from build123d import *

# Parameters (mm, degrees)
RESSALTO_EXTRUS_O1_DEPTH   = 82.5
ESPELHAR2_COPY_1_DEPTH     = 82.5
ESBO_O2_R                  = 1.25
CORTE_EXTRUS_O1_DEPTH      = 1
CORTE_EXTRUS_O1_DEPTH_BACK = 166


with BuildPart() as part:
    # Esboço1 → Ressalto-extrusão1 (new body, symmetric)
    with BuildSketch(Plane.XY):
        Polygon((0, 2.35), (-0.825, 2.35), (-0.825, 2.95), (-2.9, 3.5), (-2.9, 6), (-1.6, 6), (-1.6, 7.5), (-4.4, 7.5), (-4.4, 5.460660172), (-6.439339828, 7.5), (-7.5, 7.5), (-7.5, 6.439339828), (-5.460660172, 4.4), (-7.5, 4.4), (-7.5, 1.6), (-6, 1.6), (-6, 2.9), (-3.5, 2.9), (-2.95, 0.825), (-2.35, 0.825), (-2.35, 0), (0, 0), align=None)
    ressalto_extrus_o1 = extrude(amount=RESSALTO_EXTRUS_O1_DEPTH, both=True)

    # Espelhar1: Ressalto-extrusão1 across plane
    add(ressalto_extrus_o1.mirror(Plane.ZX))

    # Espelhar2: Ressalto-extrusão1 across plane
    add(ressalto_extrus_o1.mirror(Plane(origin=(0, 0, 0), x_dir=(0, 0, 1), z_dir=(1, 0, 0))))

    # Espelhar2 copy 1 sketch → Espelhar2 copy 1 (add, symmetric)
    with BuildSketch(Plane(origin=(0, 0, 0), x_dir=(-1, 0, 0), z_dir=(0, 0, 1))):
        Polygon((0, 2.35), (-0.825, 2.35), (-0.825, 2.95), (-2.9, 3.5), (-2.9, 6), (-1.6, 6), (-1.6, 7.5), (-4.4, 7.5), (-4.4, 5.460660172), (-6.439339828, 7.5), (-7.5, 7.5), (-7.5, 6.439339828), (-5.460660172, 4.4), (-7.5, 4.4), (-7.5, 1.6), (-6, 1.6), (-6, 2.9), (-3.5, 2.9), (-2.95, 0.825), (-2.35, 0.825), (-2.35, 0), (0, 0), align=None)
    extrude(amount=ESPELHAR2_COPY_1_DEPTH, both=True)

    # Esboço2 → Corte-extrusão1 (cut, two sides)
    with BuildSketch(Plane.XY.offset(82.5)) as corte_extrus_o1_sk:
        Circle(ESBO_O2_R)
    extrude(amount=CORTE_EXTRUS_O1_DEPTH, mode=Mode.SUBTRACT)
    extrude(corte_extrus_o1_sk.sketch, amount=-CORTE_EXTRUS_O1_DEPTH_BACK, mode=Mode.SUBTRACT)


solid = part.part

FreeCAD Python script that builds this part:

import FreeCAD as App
import Part
import Sketcher

doc = App.newDocument("Part")
body = doc.addObject("PartDesign::Body", "Body")

sketch1 = doc.addObject("Sketcher::SketchObject", "Sketch")
body.addObject(sketch1)
sketch1.AttachmentSupport = (doc.XY_Plane, [""])
sketch1.MapMode = "FlatFace"
sketch1.addGeometry(Part.LineSegment(App.Vector(0, 2.4, 0), App.Vector(-0.8, 2.4, 0)), False)
sketch1.addGeometry(Part.LineSegment(App.Vector(-0.8, 2.4, 0), App.Vector(-0.8, 3, 0)), False)
sketch1.addGeometry(Part.LineSegment(App.Vector(-0.8, 3, 0), App.Vector(-2.9, 3.5, 0)), False)
sketch1.addGeometry(Part.LineSegment(App.Vector(-2.9, 3.5, 0), App.Vector(-2.9, 6, 0)), False)
sketch1.addGeometry(Part.LineSegment(App.Vector(-2.9, 6, 0), App.Vector(-1.6, 6, 0)), False)
sketch1.addGeometry(Part.LineSegment(App.Vector(-1.6, 6, 0), App.Vector(-1.6, 7.5, 0)), False)
sketch1.addGeometry(Part.LineSegment(App.Vector(-1.6, 7.5, 0), App.Vector(-4.4, 7.5, 0)), False)
sketch1.addGeometry(Part.LineSegment(App.Vector(-4.4, 7.5, 0), App.Vector(-4.4, 5.5, 0)), False)
sketch1.addGeometry(Part.LineSegment(App.Vector(-4.4, 5.5, 0), App.Vector(-6.4, 7.5, 0)), False)
sketch1.addGeometry(Part.LineSegment(App.Vector(-6.4, 7.5, 0), App.Vector(-7.5, 7.5, 0)), False)
sketch1.addGeometry(Part.LineSegment(App.Vector(-7.5, 7.5, 0), App.Vector(-7.5, 6.4, 0)), False)
sketch1.addGeometry(Part.LineSegment(App.Vector(-7.5, 6.4, 0), App.Vector(-5.5, 4.4, 0)), False)
sketch1.addGeometry(Part.LineSegment(App.Vector(-5.5, 4.4, 0), App.Vector(-7.5, 4.4, 0)), False)
sketch1.addGeometry(Part.LineSegment(App.Vector(-7.5, 4.4, 0), App.Vector(-7.5, 1.6, 0)), False)
sketch1.addGeometry(Part.LineSegment(App.Vector(-7.5, 1.6, 0), App.Vector(-6, 1.6, 0)), False)
sketch1.addGeometry(Part.LineSegment(App.Vector(-6, 1.6, 0), App.Vector(-6, 2.9, 0)), False)
sketch1.addGeometry(Part.LineSegment(App.Vector(-6, 2.9, 0), App.Vector(-3.5, 2.9, 0)), False)
sketch1.addGeometry(Part.LineSegment(App.Vector(-3.5, 2.9, 0), App.Vector(-3, 0.8, 0)), False)
sketch1.addGeometry(Part.LineSegment(App.Vector(-3, 0.8, 0), App.Vector(-2.4, 0.8, 0)), False)
sketch1.addGeometry(Part.LineSegment(App.Vector(-2.4, 0.8, 0), App.Vector(-2.4, 0, 0)), False)
sketch1.addGeometry(Part.LineSegment(App.Vector(-2.4, 0, 0), App.Vector(0, 0, 0)), False)
sketch1.addGeometry(Part.LineSegment(App.Vector(0, 0, 0), App.Vector(0, 2.4, 0)), False)
sketch1.addConstraint(Sketcher.Constraint("Coincident", 0, 2, 1, 1))
sketch1.addConstraint(Sketcher.Constraint("Coincident", 1, 2, 2, 1))
sketch1.addConstraint(Sketcher.Constraint("Coincident", 2, 2, 3, 1))
sketch1.addConstraint(Sketcher.Constraint("Coincident", 3, 2, 4, 1))
sketch1.addConstraint(Sketcher.Constraint("Coincident", 4, 2, 5, 1))
sketch1.addConstraint(Sketcher.Constraint("Coincident", 5, 2, 6, 1))
sketch1.addConstraint(Sketcher.Constraint("Coincident", 6, 2, 7, 1))
sketch1.addConstraint(Sketcher.Constraint("Coincident", 7, 2, 8, 1))
sketch1.addConstraint(Sketcher.Constraint("Coincident", 8, 2, 9, 1))
sketch1.addConstraint(Sketcher.Constraint("Coincident", 9, 2, 10, 1))
sketch1.addConstraint(Sketcher.Constraint("Coincident", 10, 2, 11, 1))
sketch1.addConstraint(Sketcher.Constraint("Coincident", 11, 2, 12, 1))
sketch1.addConstraint(Sketcher.Constraint("Coincident", 12, 2, 13, 1))
sketch1.addConstraint(Sketcher.Constraint("Coincident", 13, 2, 14, 1))
sketch1.addConstraint(Sketcher.Constraint("Coincident", 14, 2, 15, 1))
sketch1.addConstraint(Sketcher.Constraint("Coincident", 15, 2, 16, 1))
sketch1.addConstraint(Sketcher.Constraint("Coincident", 16, 2, 17, 1))
sketch1.addConstraint(Sketcher.Constraint("Coincident", 17, 2, 18, 1))
sketch1.addConstraint(Sketcher.Constraint("Coincident", 18, 2, 19, 1))
sketch1.addConstraint(Sketcher.Constraint("Coincident", 19, 2, 20, 1))
sketch1.addConstraint(Sketcher.Constraint("Coincident", 20, 2, 21, 1))
sketch1.addConstraint(Sketcher.Constraint("Coincident", 21, 2, 0, 1))
sketch1.addConstraint(Sketcher.Constraint("Horizontal", 0))
sketch1.addConstraint(Sketcher.Constraint("Vertical", 1))
sketch1.addConstraint(Sketcher.Constraint("Vertical", 3))
sketch1.addConstraint(Sketcher.Constraint("Horizontal", 4))
sketch1.addConstraint(Sketcher.Constraint("Vertical", 5))
sketch1.addConstraint(Sketcher.Constraint("Horizontal", 6))
sketch1.addConstraint(Sketcher.Constraint("Vertical", 7))
sketch1.addConstraint(Sketcher.Constraint("Horizontal", 9))
sketch1.addConstraint(Sketcher.Constraint("Vertical", 10))
sketch1.addConstraint(Sketcher.Constraint("Horizontal", 12))
sketch1.addConstraint(Sketcher.Constraint("Vertical", 13))
sketch1.addConstraint(Sketcher.Constraint("Horizontal", 14))
sketch1.addConstraint(Sketcher.Constraint("Vertical", 15))
sketch1.addConstraint(Sketcher.Constraint("Horizontal", 16))
sketch1.addConstraint(Sketcher.Constraint("Horizontal", 18))
sketch1.addConstraint(Sketcher.Constraint("Vertical", 19))
sketch1.addConstraint(Sketcher.Constraint("Horizontal", 20))
sketch1.addConstraint(Sketcher.Constraint("Vertical", 21))
sketch1.addConstraint(Sketcher.Constraint("Coincident", 20, 2, -1, 1))
sketch1.addConstraint(Sketcher.Constraint("Parallel", 8, 11))
sketch1.addConstraint(Sketcher.Constraint("Horizontal", 6, 2, 8, 2))
sketch1.addConstraint(Sketcher.Constraint("Vertical", 10, 2, 12, 2))
sketch1.addConstraint(Sketcher.Constraint("Equal", 18, 1))
sketch1.addConstraint(Sketcher.Constraint("Equal", 16, 3))
sketch1.addConstraint(Sketcher.Constraint("Equal", 14, 5))
sketch1.addConstraint(Sketcher.Constraint("Equal", 12, 7))
sketch1.addConstraint(Sketcher.Constraint("Equal", 9, 10))
sketch1.addConstraint(Sketcher.Constraint("Equal", 6, 13))
sketch1.addConstraint(Sketcher.Constraint("Equal", 4, 15))
sketch1.addConstraint(Sketcher.Constraint("Equal", 0, 19))
sketch1.addConstraint(Sketcher.Constraint("Equal", 20, 21))
sketch1.addConstraint(Sketcher.Constraint("Equal", 8, 11))
sketch1.addConstraint(Sketcher.Constraint("Equal", 2, 17))
sketch1.addConstraint(Sketcher.Constraint("DistanceX", 4, 1, 4, 2, 1.3))
sketch1.addConstraint(Sketcher.Constraint("DistanceX", 6, 2, 6, 1, 2.8))
sketch1.addConstraint(Sketcher.Constraint("DistanceX", 14, 1, 14, 2, 1.5))
sketch1.addConstraint(Sketcher.Constraint("DistanceX", 16, 1, 16, 2, 2.5))
sketch1.addConstraint(Sketcher.Constraint("DistanceX", 18, 1, 18, 2, 0.6))
sketch1.addConstraint(Sketcher.Constraint("DistanceY", -1, 1, 3, 2, 6.0))
sketch1.addConstraint(Sketcher.Constraint("DistanceX", 20, 1, 20, 2, 2.35))
sketch1.addConstraint(Sketcher.Constraint("DistanceX", 2, 2, -1, 1, 2.9))
sketch1.addConstraint(Sketcher.Constraint("DistanceX", 0, 2, 0, 1, 0.825))
sketch1.addConstraint(Sketcher.Constraint("DistanceX", 9, 2, 9, 1, 1.06066))
pad1 = doc.addObject("PartDesign::Pad", "Pad")
body.addObject(pad1)
pad1.Profile = sketch1
pad1.Length = 165
pad1.Midplane = True
doc.recompute()

mirrored = doc.addObject("PartDesign::Mirrored", "Mirrored")
body.addObject(mirrored)
mirrored.Originals = [pad1]
mirrored.MirrorPlane = (doc.XZ_Plane, [""])
body.Tip = mirrored
doc.recompute()

mirrored2 = doc.addObject("PartDesign::Mirrored", "Mirrored001")
body.addObject(mirrored2)
mirrored2.Originals = [pad1]
mirrored2.MirrorPlane = (doc.YZ_Plane, [""])
body.Tip = mirrored2

sketch2 = doc.addObject("Sketcher::SketchObject", "Sketch001")
body.addObject(sketch2)
sketch2.AttachmentSupport = (doc.XY_Plane, [""])
sketch2.MapMode = "FlatFace"
sketch2.addGeometry(Part.LineSegment(App.Vector(0, -2.4, 0), App.Vector(0.8, -2.4, 0)), False)
sketch2.addGeometry(Part.LineSegment(App.Vector(0.8, -2.4, 0), App.Vector(0.8, -3, 0)), False)
sketch2.addGeometry(Part.LineSegment(App.Vector(0.8, -3, 0), App.Vector(2.9, -3.5, 0)), False)
sketch2.addGeometry(Part.LineSegment(App.Vector(2.9, -3.5, 0), App.Vector(2.9, -6, 0)), False)
sketch2.addGeometry(Part.LineSegment(App.Vector(2.9, -6, 0), App.Vector(1.6, -6, 0)), False)
sketch2.addGeometry(Part.LineSegment(App.Vector(1.6, -6, 0), App.Vector(1.6, -7.5, 0)), False)
sketch2.addGeometry(Part.LineSegment(App.Vector(1.6, -7.5, 0), App.Vector(4.4, -7.5, 0)), False)
sketch2.addGeometry(Part.LineSegment(App.Vector(4.4, -7.5, 0), App.Vector(4.4, -5.5, 0)), False)
sketch2.addGeometry(Part.LineSegment(App.Vector(4.4, -5.5, 0), App.Vector(6.4, -7.5, 0)), False)
sketch2.addGeometry(Part.LineSegment(App.Vector(6.4, -7.5, 0), App.Vector(7.5, -7.5, 0)), False)
sketch2.addGeometry(Part.LineSegment(App.Vector(7.5, -7.5, 0), App.Vector(7.5, -6.4, 0)), False)
sketch2.addGeometry(Part.LineSegment(App.Vector(7.5, -6.4, 0), App.Vector(5.5, -4.4, 0)), False)
sketch2.addGeometry(Part.LineSegment(App.Vector(5.5, -4.4, 0), App.Vector(7.5, -4.4, 0)), False)
sketch2.addGeometry(Part.LineSegment(App.Vector(7.5, -4.4, 0), App.Vector(7.5, -1.6, 0)), False)
sketch2.addGeometry(Part.LineSegment(App.Vector(7.5, -1.6, 0), App.Vector(6, -1.6, 0)), False)
sketch2.addGeometry(Part.LineSegment(App.Vector(6, -1.6, 0), App.Vector(6, -2.9, 0)), False)
sketch2.addGeometry(Part.LineSegment(App.Vector(6, -2.9, 0), App.Vector(3.5, -2.9, 0)), False)
sketch2.addGeometry(Part.LineSegment(App.Vector(3.5, -2.9, 0), App.Vector(3, -0.8, 0)), False)
sketch2.addGeometry(Part.LineSegment(App.Vector(3, -0.8, 0), App.Vector(2.4, -0.8, 0)), False)
sketch2.addGeometry(Part.LineSegment(App.Vector(2.4, -0.8, 0), App.Vector(2.4, 0, 0)), False)
sketch2.addGeometry(Part.LineSegment(App.Vector(2.4, 0, 0), App.Vector(0, 0, 0)), False)
sketch2.addGeometry(Part.LineSegment(App.Vector(0, 0, 0), App.Vector(0, -2.4, 0)), False)
sketch2.addConstraint(Sketcher.Constraint("Coincident", 0, 2, 1, 1))
sketch2.addConstraint(Sketcher.Constraint("Coincident", 1, 2, 2, 1))
sketch2.addConstraint(Sketcher.Constraint("Coincident", 2, 2, 3, 1))
sketch2.addConstraint(Sketcher.Constraint("Coincident", 3, 2, 4, 1))
sketch2.addConstraint(Sketcher.Constraint("Coincident", 4, 2, 5, 1))
sketch2.addConstraint(Sketcher.Constraint("Coincident", 5, 2, 6, 1))
sketch2.addConstraint(Sketcher.Constraint("Coincident", 6, 2, 7, 1))
sketch2.addConstraint(Sketcher.Constraint("Coincident", 7, 2, 8, 1))
sketch2.addConstraint(Sketcher.Constraint("Coincident", 8, 2, 9, 1))
sketch2.addConstraint(Sketcher.Constraint("Coincident", 9, 2, 10, 1))
sketch2.addConstraint(Sketcher.Constraint("Coincident", 10, 2, 11, 1))
sketch2.addConstraint(Sketcher.Constraint("Coincident", 11, 2, 12, 1))
sketch2.addConstraint(Sketcher.Constraint("Coincident", 12, 2, 13, 1))
sketch2.addConstraint(Sketcher.Constraint("Coincident", 13, 2, 14, 1))
sketch2.addConstraint(Sketcher.Constraint("Coincident", 14, 2, 15, 1))
sketch2.addConstraint(Sketcher.Constraint("Coincident", 15, 2, 16, 1))
sketch2.addConstraint(Sketcher.Constraint("Coincident", 16, 2, 17, 1))
sketch2.addConstraint(Sketcher.Constraint("Coincident", 17, 2, 18, 1))
sketch2.addConstraint(Sketcher.Constraint("Coincident", 18, 2, 19, 1))
sketch2.addConstraint(Sketcher.Constraint("Coincident", 19, 2, 20, 1))
sketch2.addConstraint(Sketcher.Constraint("Coincident", 20, 2, 21, 1))
sketch2.addConstraint(Sketcher.Constraint("Coincident", 21, 2, 0, 1))
sketch2.addConstraint(Sketcher.Constraint("Horizontal", 0))
sketch2.addConstraint(Sketcher.Constraint("Vertical", 1))
sketch2.addConstraint(Sketcher.Constraint("Vertical", 3))
sketch2.addConstraint(Sketcher.Constraint("Horizontal", 4))
sketch2.addConstraint(Sketcher.Constraint("Vertical", 5))
sketch2.addConstraint(Sketcher.Constraint("Horizontal", 6))
sketch2.addConstraint(Sketcher.Constraint("Vertical", 7))
sketch2.addConstraint(Sketcher.Constraint("Horizontal", 9))
sketch2.addConstraint(Sketcher.Constraint("Vertical", 10))
sketch2.addConstraint(Sketcher.Constraint("Horizontal", 12))
sketch2.addConstraint(Sketcher.Constraint("Vertical", 13))
sketch2.addConstraint(Sketcher.Constraint("Horizontal", 14))
sketch2.addConstraint(Sketcher.Constraint("Vertical", 15))
sketch2.addConstraint(Sketcher.Constraint("Horizontal", 16))
sketch2.addConstraint(Sketcher.Constraint("Horizontal", 18))
sketch2.addConstraint(Sketcher.Constraint("Vertical", 19))
sketch2.addConstraint(Sketcher.Constraint("Horizontal", 20))
sketch2.addConstraint(Sketcher.Constraint("Vertical", 21))
sketch2.addConstraint(Sketcher.Constraint("Coincident", 20, 2, -1, 1))
sketch2.addConstraint(Sketcher.Constraint("Parallel", 8, 11))
sketch2.addConstraint(Sketcher.Constraint("Horizontal", 6, 2, 8, 2))
sketch2.addConstraint(Sketcher.Constraint("Vertical", 10, 2, 12, 2))
sketch2.addConstraint(Sketcher.Constraint("Equal", 18, 1))
sketch2.addConstraint(Sketcher.Constraint("Equal", 16, 3))
sketch2.addConstraint(Sketcher.Constraint("Equal", 14, 5))
sketch2.addConstraint(Sketcher.Constraint("Equal", 12, 7))
sketch2.addConstraint(Sketcher.Constraint("Equal", 9, 10))
sketch2.addConstraint(Sketcher.Constraint("Equal", 6, 13))
sketch2.addConstraint(Sketcher.Constraint("Equal", 4, 15))
sketch2.addConstraint(Sketcher.Constraint("Equal", 0, 19))
sketch2.addConstraint(Sketcher.Constraint("Equal", 20, 21))
sketch2.addConstraint(Sketcher.Constraint("Equal", 8, 11))
sketch2.addConstraint(Sketcher.Constraint("Equal", 2, 17))
sketch2.addConstraint(Sketcher.Constraint("DistanceX", 4, 2, 4, 1, 1.3))
sketch2.addConstraint(Sketcher.Constraint("DistanceX", 6, 1, 6, 2, 2.8))
sketch2.addConstraint(Sketcher.Constraint("DistanceX", 14, 2, 14, 1, 1.5))
sketch2.addConstraint(Sketcher.Constraint("DistanceX", 16, 2, 16, 1, 2.5))
sketch2.addConstraint(Sketcher.Constraint("DistanceX", 18, 2, 18, 1, 0.6))
sketch2.addConstraint(Sketcher.Constraint("DistanceY", 3, 2, -1, 1, 6.0))
sketch2.addConstraint(Sketcher.Constraint("DistanceX", 20, 2, 20, 1, 2.35))
sketch2.addConstraint(Sketcher.Constraint("DistanceX", -1, 1, 2, 2, 2.9))
sketch2.addConstraint(Sketcher.Constraint("DistanceX", 0, 1, 0, 2, 0.825))
sketch2.addConstraint(Sketcher.Constraint("DistanceX", 9, 1, 9, 2, 1.06066))
pad2 = doc.addObject("PartDesign::Pad", "Pad001")
body.addObject(pad2)
pad2.Profile = sketch2
pad2.Length = 165
pad2.Midplane = True

sketch3 = doc.addObject("Sketcher::SketchObject", "Sketch002")
body.addObject(sketch3)
sketch3.AttachmentSupport = (doc.XY_Plane, [""])
sketch3.MapMode = "FlatFace"
sketch3.AttachmentOffset = App.Placement(App.Vector(0, 0, 82.5), App.Rotation())
sketch3.addGeometry(Part.Circle(App.Vector(0, 0, 0), App.Vector(0, 0, 1), 1.2), False)
sketch3.addConstraint(Sketcher.Constraint("Coincident", 0, 3, -1, 1))
sketch3.addConstraint(Sketcher.Constraint("Diameter", 0, 2.5))
pocket1 = doc.addObject("PartDesign::Pocket", "Pocket")
body.addObject(pocket1)
pocket1.Profile = sketch3
pocket1.Type = "ThroughAll"
pocket1.Midplane = True

doc.recompute()
